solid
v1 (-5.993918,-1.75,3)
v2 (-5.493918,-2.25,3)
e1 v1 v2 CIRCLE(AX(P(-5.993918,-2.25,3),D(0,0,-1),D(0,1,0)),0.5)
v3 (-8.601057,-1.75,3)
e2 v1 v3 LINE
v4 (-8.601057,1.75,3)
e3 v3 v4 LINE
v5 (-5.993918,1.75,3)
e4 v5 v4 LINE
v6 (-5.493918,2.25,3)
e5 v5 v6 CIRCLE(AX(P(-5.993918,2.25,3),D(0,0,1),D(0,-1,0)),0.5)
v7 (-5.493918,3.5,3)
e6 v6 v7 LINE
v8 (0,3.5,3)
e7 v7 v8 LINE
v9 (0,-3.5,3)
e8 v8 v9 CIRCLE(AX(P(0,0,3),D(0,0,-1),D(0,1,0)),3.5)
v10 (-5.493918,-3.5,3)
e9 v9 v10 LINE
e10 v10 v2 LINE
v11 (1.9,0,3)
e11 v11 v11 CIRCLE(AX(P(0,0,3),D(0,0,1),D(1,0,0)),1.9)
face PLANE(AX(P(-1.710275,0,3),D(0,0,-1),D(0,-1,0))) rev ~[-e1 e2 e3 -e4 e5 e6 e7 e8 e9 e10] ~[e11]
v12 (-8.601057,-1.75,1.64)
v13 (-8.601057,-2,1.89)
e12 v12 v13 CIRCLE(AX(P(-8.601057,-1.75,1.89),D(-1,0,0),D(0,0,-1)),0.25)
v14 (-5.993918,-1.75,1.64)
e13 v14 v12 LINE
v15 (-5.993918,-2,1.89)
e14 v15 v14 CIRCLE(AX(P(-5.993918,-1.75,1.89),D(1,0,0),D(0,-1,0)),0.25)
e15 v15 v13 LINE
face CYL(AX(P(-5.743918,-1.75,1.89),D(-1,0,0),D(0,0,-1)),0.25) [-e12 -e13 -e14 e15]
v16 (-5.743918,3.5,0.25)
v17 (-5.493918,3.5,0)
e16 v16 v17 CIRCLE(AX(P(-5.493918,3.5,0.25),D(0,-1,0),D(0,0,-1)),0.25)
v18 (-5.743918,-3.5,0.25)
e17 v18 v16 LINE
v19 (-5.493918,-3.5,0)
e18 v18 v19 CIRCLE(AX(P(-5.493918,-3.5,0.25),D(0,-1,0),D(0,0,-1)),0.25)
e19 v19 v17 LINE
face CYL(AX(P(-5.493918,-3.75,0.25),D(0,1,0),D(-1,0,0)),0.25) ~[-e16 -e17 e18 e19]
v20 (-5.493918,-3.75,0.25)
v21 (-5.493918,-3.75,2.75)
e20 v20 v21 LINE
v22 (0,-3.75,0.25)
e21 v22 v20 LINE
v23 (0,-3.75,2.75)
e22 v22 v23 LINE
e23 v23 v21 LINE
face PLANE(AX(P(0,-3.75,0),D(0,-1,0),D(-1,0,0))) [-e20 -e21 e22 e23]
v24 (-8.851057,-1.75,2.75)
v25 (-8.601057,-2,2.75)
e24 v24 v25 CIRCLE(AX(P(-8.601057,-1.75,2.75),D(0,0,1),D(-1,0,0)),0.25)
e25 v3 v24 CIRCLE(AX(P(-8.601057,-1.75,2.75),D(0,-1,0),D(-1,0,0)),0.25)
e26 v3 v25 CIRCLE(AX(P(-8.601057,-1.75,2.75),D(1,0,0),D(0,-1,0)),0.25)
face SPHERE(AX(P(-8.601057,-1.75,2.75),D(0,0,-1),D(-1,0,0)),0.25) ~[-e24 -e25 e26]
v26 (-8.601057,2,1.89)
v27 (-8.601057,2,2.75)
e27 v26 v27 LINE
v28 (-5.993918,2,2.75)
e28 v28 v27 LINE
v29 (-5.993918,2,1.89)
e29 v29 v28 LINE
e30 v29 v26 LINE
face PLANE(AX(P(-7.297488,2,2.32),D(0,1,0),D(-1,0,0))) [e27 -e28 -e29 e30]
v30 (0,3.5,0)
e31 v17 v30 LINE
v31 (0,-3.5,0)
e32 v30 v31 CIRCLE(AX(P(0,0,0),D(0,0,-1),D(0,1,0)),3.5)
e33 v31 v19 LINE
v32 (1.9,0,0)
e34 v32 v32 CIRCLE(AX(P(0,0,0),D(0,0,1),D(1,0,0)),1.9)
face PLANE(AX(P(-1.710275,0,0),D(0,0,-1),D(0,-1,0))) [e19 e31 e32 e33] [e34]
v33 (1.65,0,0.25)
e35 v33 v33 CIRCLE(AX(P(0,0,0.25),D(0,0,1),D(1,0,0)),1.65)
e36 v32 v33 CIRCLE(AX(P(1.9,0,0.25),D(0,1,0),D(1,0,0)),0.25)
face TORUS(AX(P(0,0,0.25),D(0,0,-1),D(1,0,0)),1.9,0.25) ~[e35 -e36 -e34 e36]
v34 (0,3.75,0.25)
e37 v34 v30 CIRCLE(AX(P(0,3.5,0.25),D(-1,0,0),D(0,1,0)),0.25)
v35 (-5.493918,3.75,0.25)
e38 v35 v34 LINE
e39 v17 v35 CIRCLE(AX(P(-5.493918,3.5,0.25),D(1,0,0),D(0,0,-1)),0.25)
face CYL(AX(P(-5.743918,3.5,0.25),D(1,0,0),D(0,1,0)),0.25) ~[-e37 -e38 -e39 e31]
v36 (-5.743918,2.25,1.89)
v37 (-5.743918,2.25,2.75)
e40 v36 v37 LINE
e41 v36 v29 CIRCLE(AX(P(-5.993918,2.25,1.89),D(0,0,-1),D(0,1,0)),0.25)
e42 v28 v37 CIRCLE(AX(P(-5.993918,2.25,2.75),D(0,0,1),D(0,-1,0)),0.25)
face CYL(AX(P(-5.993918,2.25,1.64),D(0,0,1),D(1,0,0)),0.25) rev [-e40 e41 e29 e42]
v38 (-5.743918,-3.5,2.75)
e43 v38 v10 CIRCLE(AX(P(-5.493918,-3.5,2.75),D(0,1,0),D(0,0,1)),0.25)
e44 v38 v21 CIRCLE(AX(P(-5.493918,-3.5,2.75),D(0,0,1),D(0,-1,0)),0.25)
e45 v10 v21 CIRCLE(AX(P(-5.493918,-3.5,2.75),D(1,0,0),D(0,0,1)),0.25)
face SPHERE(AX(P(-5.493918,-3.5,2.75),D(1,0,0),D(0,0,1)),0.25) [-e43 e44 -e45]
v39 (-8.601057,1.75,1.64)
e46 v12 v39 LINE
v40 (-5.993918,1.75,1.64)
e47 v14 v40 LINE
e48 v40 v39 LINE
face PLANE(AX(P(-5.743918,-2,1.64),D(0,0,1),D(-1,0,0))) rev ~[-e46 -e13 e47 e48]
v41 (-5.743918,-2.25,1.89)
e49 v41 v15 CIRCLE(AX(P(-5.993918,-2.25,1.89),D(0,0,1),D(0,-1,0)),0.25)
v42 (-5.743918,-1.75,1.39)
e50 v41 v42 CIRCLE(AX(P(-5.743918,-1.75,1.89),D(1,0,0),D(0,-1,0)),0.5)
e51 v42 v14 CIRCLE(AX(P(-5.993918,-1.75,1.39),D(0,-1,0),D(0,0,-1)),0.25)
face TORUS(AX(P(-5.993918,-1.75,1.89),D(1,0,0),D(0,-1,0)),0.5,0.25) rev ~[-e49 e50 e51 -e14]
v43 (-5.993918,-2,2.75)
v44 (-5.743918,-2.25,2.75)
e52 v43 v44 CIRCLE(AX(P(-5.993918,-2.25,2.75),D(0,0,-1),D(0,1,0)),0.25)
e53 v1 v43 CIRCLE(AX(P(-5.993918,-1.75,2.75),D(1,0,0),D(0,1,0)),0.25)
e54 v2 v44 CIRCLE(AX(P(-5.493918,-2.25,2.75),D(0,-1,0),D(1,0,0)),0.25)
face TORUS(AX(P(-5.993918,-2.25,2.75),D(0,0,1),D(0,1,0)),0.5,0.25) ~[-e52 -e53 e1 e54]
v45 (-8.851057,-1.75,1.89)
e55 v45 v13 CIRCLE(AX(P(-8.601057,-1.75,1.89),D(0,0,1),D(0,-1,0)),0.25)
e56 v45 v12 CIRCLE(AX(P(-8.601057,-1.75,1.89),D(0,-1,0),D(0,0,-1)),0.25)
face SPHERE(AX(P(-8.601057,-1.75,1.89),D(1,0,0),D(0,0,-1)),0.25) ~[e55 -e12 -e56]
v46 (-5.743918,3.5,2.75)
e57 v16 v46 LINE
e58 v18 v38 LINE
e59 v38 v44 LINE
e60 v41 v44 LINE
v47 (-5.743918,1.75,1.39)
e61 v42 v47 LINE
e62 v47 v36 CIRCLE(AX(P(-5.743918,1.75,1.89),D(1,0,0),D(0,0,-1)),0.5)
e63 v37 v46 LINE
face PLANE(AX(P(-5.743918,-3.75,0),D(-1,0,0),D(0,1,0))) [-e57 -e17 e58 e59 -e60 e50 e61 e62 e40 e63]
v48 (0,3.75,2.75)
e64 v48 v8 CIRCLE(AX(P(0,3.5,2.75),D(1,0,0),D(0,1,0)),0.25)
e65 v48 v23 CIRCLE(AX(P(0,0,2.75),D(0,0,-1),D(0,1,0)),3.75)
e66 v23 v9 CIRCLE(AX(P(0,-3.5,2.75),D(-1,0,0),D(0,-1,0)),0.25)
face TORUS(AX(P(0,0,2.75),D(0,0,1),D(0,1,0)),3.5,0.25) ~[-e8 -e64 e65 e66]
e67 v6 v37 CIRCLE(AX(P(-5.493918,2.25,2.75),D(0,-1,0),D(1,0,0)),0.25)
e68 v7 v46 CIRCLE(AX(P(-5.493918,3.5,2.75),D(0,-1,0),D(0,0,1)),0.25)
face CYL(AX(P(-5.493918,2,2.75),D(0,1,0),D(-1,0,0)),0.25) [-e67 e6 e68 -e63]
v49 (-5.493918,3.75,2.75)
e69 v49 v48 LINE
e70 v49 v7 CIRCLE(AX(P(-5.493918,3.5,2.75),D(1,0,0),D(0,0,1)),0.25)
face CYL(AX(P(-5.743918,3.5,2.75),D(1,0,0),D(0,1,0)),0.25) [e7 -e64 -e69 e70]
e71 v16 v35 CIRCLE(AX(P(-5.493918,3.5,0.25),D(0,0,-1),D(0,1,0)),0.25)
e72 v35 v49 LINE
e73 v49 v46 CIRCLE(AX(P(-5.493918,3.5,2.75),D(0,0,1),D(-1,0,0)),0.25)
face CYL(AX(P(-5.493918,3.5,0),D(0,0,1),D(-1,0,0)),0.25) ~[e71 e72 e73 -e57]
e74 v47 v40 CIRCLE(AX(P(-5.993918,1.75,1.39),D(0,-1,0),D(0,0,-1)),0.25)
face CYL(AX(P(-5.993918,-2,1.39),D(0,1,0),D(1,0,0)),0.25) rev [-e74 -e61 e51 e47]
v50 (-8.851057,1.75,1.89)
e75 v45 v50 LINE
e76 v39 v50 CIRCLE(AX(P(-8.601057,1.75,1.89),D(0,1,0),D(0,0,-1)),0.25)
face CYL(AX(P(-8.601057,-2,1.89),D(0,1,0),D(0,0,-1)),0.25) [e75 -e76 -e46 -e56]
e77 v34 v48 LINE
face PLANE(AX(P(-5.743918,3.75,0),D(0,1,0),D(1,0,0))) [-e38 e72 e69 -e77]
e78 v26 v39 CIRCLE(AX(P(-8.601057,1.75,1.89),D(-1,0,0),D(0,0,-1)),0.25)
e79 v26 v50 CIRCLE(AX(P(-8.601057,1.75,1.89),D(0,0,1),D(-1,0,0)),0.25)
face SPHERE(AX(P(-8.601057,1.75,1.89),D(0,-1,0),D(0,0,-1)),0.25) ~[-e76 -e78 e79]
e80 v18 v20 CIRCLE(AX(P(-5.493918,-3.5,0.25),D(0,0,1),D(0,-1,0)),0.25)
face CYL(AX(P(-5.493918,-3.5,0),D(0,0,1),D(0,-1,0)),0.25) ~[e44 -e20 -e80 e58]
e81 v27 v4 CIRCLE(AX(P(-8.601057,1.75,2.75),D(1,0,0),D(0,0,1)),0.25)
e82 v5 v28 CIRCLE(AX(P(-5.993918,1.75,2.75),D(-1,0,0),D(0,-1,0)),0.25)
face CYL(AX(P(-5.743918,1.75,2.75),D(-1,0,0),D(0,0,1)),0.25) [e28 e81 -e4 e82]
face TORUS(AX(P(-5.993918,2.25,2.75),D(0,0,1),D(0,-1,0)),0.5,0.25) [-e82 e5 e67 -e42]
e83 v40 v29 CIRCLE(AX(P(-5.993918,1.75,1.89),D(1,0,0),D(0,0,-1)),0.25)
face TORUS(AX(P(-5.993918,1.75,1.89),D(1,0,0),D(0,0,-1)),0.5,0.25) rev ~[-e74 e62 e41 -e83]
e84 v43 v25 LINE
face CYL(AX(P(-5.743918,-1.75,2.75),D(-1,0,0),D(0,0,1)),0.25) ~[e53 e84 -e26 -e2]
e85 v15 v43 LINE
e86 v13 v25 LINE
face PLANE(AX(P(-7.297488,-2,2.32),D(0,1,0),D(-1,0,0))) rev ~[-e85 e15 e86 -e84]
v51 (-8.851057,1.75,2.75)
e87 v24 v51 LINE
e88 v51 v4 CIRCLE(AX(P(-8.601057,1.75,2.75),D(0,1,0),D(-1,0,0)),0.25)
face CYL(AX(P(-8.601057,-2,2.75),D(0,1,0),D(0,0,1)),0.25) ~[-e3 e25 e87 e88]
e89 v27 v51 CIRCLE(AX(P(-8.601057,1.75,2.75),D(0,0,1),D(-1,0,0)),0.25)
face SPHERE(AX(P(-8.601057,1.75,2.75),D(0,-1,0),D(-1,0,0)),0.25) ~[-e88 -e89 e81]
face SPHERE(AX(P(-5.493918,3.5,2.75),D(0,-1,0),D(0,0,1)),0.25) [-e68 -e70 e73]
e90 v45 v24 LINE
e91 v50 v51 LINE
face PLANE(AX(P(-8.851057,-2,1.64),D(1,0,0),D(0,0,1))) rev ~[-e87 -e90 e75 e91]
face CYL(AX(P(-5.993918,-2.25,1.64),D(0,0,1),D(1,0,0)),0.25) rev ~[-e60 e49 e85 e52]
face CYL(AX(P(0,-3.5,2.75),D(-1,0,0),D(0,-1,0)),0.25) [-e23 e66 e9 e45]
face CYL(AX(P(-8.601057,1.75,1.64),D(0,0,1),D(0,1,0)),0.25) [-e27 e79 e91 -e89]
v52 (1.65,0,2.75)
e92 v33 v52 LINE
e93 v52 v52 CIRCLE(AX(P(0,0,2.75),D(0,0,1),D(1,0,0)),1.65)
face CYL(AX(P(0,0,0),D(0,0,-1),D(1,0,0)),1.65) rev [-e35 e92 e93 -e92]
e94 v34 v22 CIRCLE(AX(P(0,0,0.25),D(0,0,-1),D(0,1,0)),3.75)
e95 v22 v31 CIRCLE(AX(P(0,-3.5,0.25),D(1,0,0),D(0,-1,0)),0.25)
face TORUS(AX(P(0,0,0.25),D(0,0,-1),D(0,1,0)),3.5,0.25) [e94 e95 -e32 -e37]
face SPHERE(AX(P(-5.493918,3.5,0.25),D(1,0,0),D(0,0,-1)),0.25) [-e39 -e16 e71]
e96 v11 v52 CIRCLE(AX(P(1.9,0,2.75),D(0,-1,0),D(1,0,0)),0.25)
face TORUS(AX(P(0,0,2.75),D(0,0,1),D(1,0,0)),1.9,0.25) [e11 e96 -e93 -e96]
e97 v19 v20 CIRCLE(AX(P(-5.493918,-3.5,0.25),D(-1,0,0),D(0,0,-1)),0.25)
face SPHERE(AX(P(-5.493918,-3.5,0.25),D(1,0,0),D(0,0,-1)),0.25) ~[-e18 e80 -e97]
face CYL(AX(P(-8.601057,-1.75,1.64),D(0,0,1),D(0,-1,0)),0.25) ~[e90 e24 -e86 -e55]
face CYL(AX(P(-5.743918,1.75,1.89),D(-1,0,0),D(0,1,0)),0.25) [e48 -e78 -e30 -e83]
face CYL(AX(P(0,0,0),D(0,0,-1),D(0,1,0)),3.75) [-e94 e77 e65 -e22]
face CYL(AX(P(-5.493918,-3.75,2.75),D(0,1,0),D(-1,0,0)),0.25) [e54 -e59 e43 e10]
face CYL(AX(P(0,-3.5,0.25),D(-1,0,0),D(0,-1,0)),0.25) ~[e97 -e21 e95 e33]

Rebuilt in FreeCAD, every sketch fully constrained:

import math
import FreeCAD as App
import Part
import Sketcher

doc = App.newDocument("Part")
body = doc.addObject("PartDesign::Body", "Body")

# Sketch on XY plane
sketch1 = body.newObject("Sketcher::SketchObject", "Sketch")
sketch1.AttachmentSupport = (doc.getObject("XY_Plane"), [""])
sketch1.MapMode = "FlatFace"
sketch1.addGeometry([
    Part.LineSegment(App.Vector(-5.7, -3.8, 0), App.Vector(0, -3.8, 0)),  # 0
    Part.ArcOfCircle(Part.Circle(App.Vector(0, 0, 0), App.Vector(0, 0, 1), 3.8), math.radians(-90), math.radians(90)),  # 1
    Part.LineSegment(App.Vector(0, 3.8, 0), App.Vector(-5.7, 3.8, 0)),  # 2
    Part.LineSegment(App.Vector(-5.7, 3.8, 0), App.Vector(-5.7, -3.8, 0)),  # 3
    Part.Circle(App.Vector(0, 0, 0), App.Vector(0, 0, 1), 1.6),  # 4
], False)
sketch1.addConstraint([
    Sketcher.Constraint("Tangent", 0, 2, 1, 1),
    Sketcher.Constraint("Tangent", 1, 2, 2, 1),
    Sketcher.Constraint("Coincident", 2, 2, 3, 1),
    Sketcher.Constraint("Coincident", 3, 2, 0, 1),
    Sketcher.Constraint("Horizontal", 0),
    Sketcher.Constraint("Horizontal", 2),
    Sketcher.Constraint("Vertical", 3),
    Sketcher.Constraint("Coincident", 1, 3, -1, 1),
    Sketcher.Constraint("Coincident", 4, 3, -1, 1),
    Sketcher.Constraint("Diameter", 4, 3.3),
    Sketcher.Constraint("Radius", 1, 3.75),
    Sketcher.Constraint("DistanceX", 0, 1, 0, 2, 5.743918),
])
pad1 = body.newObject("PartDesign::Pad", "Pad")
pad1.Profile = sketch1
pad1.Length = 3

# Sketch on XZ plane
sketch2 = body.newObject("Sketcher::SketchObject", "Sketch001")
sketch2.AttachmentSupport = (doc.getObject("XZ_Plane"), [""])
sketch2.MapMode = "FlatFace"
sketch2.addGeometry([
    Part.LineSegment(App.Vector(-5.7, 3, 0), App.Vector(-5.7, 1.6, 0)),
    Part.LineSegment(App.Vector(-5.7, 1.6, 0), App.Vector(-8.9, 1.6, 0)),
    Part.LineSegment(App.Vector(-8.9, 1.6, 0), App.Vector(-8.9, 3, 0)),
    Part.LineSegment(App.Vector(-8.9, 3, 0), App.Vector(-5.7, 3, 0)),
], False)
sketch2.addConstraint([
    Sketcher.Constraint("Coincident", 0, 2, 1, 1),
    Sketcher.Constraint("Coincident", 1, 2, 2, 1),
    Sketcher.Constraint("Coincident", 2, 2, 3, 1),
    Sketcher.Constraint("Coincident", 3, 2, 0, 1),
    Sketcher.Constraint("Vertical", 0),
    Sketcher.Constraint("Horizontal", 1),
    Sketcher.Constraint("Vertical", 2),
    Sketcher.Constraint("Horizontal", 3),
    Sketcher.Constraint("DistanceY", -1, 1, 2, 2, 3.0),
    Sketcher.Constraint("DistanceY", 0, 2, 0, 1, 1.36),
    Sketcher.Constraint("DistanceX", 1, 2, 1, 1, 3.10714),
    Sketcher.Constraint("DistanceX", 0, 2, -1, 1, 5.743918),
])
pad2 = body.newObject("PartDesign::Pad", "Pad001")
pad2.Profile = sketch2
pad2.Type = "TwoLengths"
pad2.Length = 2
pad2.Length2 = 2
pad2.Reversed = True
doc.recompute()

fillet = body.newObject("PartDesign::Fillet", "Fillet")
fillet.Base = (pad2, ["Edge1"])
fillet.UseAllEdges = True
fillet.Radius = 0.25

doc.recompute()
